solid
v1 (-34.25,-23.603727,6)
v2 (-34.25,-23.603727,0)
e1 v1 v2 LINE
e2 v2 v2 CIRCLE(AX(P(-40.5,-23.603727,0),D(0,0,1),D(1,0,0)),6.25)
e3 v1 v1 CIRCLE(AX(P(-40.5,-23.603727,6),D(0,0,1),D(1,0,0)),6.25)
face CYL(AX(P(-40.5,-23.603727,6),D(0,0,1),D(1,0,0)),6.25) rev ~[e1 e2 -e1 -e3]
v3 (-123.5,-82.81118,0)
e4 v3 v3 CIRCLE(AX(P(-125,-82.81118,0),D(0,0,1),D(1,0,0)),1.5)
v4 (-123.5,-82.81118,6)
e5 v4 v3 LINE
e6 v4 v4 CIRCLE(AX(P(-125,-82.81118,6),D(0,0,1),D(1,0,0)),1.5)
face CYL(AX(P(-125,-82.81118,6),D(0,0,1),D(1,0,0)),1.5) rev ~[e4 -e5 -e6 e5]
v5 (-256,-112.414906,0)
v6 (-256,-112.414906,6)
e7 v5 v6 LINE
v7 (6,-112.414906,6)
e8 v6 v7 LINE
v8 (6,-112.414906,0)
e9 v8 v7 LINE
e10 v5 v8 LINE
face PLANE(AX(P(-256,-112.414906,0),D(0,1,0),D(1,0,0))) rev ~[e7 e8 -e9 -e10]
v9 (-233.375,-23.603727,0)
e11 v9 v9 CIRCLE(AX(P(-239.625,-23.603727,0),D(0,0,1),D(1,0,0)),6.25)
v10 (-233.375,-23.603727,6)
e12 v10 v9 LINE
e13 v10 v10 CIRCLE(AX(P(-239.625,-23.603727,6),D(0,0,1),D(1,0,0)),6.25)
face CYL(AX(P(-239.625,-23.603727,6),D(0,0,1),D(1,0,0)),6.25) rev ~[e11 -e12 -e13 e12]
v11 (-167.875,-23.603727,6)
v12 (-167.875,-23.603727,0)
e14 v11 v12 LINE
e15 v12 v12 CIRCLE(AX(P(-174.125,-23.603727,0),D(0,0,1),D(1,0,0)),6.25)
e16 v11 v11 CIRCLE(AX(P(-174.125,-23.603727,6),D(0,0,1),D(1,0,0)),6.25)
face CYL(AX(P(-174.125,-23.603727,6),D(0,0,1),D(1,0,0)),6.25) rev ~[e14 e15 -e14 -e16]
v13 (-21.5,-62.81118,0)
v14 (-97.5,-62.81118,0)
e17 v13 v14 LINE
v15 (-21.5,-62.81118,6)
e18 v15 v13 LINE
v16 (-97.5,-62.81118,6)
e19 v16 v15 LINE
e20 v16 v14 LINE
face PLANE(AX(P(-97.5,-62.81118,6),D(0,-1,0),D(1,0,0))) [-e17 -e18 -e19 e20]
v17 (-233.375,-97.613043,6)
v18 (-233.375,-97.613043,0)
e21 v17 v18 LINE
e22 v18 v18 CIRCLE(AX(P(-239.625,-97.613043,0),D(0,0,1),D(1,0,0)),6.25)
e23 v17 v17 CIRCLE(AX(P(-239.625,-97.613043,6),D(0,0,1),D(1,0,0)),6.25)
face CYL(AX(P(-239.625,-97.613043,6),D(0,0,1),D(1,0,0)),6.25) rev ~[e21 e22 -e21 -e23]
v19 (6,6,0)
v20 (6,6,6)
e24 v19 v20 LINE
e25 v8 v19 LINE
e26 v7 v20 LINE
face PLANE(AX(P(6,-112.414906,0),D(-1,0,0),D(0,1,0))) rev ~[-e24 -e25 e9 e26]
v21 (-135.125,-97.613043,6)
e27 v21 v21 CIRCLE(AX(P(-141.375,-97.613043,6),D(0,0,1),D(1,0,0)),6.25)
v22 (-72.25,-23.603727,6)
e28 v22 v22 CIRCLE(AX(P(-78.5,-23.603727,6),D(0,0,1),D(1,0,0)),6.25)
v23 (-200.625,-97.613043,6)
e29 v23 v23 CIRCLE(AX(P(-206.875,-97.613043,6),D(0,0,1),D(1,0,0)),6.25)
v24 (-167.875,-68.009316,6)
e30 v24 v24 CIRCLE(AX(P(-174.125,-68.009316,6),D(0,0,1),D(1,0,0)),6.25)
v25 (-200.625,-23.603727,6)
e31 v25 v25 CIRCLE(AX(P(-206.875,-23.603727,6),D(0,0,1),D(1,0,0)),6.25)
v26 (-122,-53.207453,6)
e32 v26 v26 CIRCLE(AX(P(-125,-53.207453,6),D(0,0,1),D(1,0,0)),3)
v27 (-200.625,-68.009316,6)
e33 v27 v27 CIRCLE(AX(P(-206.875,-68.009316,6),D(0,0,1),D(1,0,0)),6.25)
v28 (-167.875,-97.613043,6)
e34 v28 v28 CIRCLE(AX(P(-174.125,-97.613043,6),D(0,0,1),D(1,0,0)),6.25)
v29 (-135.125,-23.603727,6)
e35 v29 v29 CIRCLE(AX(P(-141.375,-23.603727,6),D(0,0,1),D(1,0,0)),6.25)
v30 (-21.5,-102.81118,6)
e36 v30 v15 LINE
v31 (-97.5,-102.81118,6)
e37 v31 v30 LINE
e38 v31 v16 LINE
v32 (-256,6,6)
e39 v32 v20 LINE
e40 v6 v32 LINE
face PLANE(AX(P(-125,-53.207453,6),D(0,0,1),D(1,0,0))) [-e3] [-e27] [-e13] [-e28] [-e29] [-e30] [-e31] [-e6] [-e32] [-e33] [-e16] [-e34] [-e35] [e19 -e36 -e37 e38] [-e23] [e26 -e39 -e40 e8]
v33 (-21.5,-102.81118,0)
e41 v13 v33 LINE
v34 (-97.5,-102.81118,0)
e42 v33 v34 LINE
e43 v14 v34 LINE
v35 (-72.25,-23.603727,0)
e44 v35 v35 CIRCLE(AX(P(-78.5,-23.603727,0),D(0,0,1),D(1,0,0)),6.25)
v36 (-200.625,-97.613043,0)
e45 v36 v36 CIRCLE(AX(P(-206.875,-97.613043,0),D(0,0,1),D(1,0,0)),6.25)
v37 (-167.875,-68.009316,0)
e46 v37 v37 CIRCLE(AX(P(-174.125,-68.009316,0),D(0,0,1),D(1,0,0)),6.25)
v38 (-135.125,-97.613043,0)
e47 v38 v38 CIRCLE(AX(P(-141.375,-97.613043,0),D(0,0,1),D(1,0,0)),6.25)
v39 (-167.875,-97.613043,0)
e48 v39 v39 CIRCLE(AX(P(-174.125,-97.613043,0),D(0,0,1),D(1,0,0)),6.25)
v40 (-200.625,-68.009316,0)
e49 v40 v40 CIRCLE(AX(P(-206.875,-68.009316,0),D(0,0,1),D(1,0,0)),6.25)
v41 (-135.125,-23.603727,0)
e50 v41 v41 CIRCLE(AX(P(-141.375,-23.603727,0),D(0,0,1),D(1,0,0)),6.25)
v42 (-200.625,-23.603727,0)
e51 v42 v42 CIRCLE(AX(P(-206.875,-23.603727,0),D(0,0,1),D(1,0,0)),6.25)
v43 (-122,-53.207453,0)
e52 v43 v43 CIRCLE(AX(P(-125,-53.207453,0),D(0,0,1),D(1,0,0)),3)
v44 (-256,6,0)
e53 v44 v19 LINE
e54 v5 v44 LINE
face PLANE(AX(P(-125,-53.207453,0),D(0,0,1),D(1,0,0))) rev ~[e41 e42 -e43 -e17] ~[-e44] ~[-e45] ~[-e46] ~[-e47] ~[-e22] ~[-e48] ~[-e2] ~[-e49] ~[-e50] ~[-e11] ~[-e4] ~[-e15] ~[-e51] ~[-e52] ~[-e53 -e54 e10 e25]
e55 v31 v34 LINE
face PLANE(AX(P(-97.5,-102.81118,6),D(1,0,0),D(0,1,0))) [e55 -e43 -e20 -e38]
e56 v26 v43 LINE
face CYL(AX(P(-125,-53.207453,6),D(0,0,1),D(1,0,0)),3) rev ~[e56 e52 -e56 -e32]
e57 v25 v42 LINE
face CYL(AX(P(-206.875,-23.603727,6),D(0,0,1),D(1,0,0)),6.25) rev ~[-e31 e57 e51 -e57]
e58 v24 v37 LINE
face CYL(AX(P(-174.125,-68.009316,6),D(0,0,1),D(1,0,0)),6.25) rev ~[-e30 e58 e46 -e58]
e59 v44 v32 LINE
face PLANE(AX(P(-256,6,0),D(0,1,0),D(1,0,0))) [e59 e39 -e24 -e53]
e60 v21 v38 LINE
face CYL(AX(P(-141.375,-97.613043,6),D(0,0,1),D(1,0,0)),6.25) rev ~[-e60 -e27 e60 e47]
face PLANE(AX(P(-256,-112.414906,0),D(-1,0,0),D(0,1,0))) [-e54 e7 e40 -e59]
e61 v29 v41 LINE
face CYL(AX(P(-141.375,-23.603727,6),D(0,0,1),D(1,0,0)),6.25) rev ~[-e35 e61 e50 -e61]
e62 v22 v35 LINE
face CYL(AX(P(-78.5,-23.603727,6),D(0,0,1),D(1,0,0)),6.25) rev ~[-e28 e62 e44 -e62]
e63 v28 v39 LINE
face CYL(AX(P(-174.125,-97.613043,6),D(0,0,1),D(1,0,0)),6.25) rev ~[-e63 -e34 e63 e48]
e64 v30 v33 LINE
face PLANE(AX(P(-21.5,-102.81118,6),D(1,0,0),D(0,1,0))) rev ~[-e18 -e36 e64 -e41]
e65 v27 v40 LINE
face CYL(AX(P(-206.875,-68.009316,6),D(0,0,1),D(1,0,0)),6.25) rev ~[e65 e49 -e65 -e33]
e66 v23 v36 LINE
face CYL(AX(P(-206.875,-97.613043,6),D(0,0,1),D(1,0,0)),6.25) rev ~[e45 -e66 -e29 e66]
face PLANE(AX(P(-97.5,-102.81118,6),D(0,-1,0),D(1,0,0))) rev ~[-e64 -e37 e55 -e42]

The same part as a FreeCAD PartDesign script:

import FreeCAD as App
import Part
import Sketcher
from FreeCAD import Vector


def add_polygon(sketch, points):
    """Adds a closed chain of lines whose ends are joined by coincident constraints."""
    first, n = sketch.GeometryCount, len(points)
    for a, b in zip(points, points[1:] + points[:1]):
        sketch.addGeometry(Part.LineSegment(App.Vector(*a, 0), App.Vector(*b, 0)), False)
    for i in range(n):
        sketch.addConstraint(Sketcher.Constraint("Coincident", first + i, 2, first + (i + 1) % n, 1))

doc = App.newDocument("Part")
body = doc.addObject("PartDesign::Body", "Body")

sketch1 = body.newObject("Sketcher::SketchObject", "Sketch")
sketch1.AttachmentSupport = (doc.getObject("XY_Plane"), [""])
sketch1.MapMode = "FlatFace"
add_polygon(sketch1, [(-256, 6), (-256, -112.414906), (6, -112.414906), (6, 6)])
sketch1.addConstraint(Sketcher.Constraint("Vertical", 0))
sketch1.addConstraint(Sketcher.Constraint("Horizontal", 1))
sketch1.addConstraint(Sketcher.Constraint("Vertical", 2))
sketch1.addConstraint(Sketcher.Constraint("Horizontal", 3))
sketch1.addConstraint(Sketcher.Constraint("DistanceX", 1, 1, 1, 2, 262.0))
sketch1.addConstraint(Sketcher.Constraint("DistanceX", 0, 2, -1, 1, 256.0))
sketch1.addConstraint(Sketcher.Constraint("DistanceY", -1, 1, 2, 2, 6.0))
sketch1.addConstraint(Sketcher.Constraint("DistanceY", 0, 2, 0, 1, 118.414906))
pad1 = body.newObject("PartDesign::Pad", "Pad")
pad1.Profile = sketch1
pad1.Length = 6

sketch2 = body.newObject("Sketcher::SketchObject", "Sketch001")
sketch2.AttachmentSupport = (doc.getObject("XY_Plane"), [""])
sketch2.MapMode = "FlatFace"
sketch2.AttachmentOffset = App.Placement(Vector(0, 0, 6), App.Rotation())
sketch2.addGeometry(Part.Circle(Vector(-40.5, -23.603727, 0), Vector(0, 0, 1), 6.25), False)
sketch2.addConstraint(Sketcher.Constraint("Diameter", 0, 12.5))
sketch2.addConstraint(Sketcher.Constraint("DistanceX", 0, 3, -1, 1, 40.5))
sketch2.addConstraint(Sketcher.Constraint("DistanceY", 0, 3, -1, 1, 23.603727))
pocket1 = body.newObject("PartDesign::Pocket", "Pocket")
pocket1.Profile = sketch2
pocket1.Type = "UpToFirst"

sketch3 = body.newObject("Sketcher::SketchObject", "Sketch002")
sketch3.AttachmentSupport = (doc.getObject("XY_Plane"), [""])
sketch3.MapMode = "FlatFace"
sketch3.AttachmentOffset = App.Placement(Vector(0, 0, 6), App.Rotation())
sketch3.addGeometry(Part.Circle(Vector(-78.5, -23.603727, 0), Vector(0, 0, 1), 6.25), False)
sketch3.addConstraint(Sketcher.Constraint("Diameter", 0, 12.5))
sketch3.addConstraint(Sketcher.Constraint("DistanceX", 0, 3, -1, 1, 78.5))
sketch3.addConstraint(Sketcher.Constraint("DistanceY", 0, 3, -1, 1, 23.603727))
pocket2 = body.newObject("PartDesign::Pocket", "Pocket001")
pocket2.Profile = sketch3
pocket2.Type = "UpToFirst"

sketch4 = body.newObject("Sketcher::SketchObject", "Sketch003")
sketch4.AttachmentSupport = (doc.getObject("XY_Plane"), [""])
sketch4.MapMode = "FlatFace"
sketch4.AttachmentOffset = App.Placement(Vector(0, 0, 6), App.Rotation())
add_polygon(sketch4, [(-97.5, -62.81118), (-97.5, -102.81118), (-21.5, -102.81118), (-21.5, -62.81118)])
sketch4.addConstraint(Sketcher.Constraint("Vertical", 0))
sketch4.addConstraint(Sketcher.Constraint("Horizontal", 1))
sketch4.addConstraint(Sketcher.Constraint("Vertical", 2))
sketch4.addConstraint(Sketcher.Constraint("Horizontal", 3))
sketch4.addConstraint(Sketcher.Constraint("DistanceX", 1, 1, 1, 2, 76.0))
sketch4.addConstraint(Sketcher.Constraint("DistanceY", 0, 2, 0, 1, 40.0))
sketch4.addConstraint(Sketcher.Constraint("DistanceX", 0, 2, -1, 1, 97.5))
sketch4.addConstraint(Sketcher.Constraint("DistanceY", 0, 2, -1, 1, 102.81118))
pocket3 = body.newObject("PartDesign::Pocket", "Pocket002")
pocket3.Profile = sketch4
pocket3.Type = "UpToFirst"

sketch5 = body.newObject("Sketcher::SketchObject", "Sketch004")
sketch5.AttachmentSupport = (doc.getObject("XY_Plane"), [""])
sketch5.MapMode = "FlatFace"
sketch5.AttachmentOffset = App.Placement(Vector(0, 0, 6), App.Rotation())
sketch5.addGeometry(Part.Circle(Vector(-125, -53.207453, 0), Vector(0, 0, 1), 3), False)
sketch5.addConstraint(Sketcher.Constraint("Diameter", 0, 6.0))
sketch5.addConstraint(Sketcher.Constraint("DistanceX", 0, 3, -1, 1, 125.0))
sketch5.addConstraint(Sketcher.Constraint("DistanceY", 0, 3, -1, 1, 53.207453))
pocket4 = body.newObject("PartDesign::Pocket", "Pocket003")
pocket4.Profile = sketch5
pocket4.Type = "UpToFirst"

sketch6 = body.newObject("Sketcher::SketchObject", "Sketch005")
sketch6.AttachmentSupport = (doc.getObject("XY_Plane"), [""])
sketch6.MapMode = "FlatFace"
sketch6.AttachmentOffset = App.Placement(Vector(0, 0, 6), App.Rotation())
sketch6.addGeometry(Part.Circle(Vector(-125, -82.81118, 0), Vector(0, 0, 1), 1.5), False)
sketch6.addConstraint(Sketcher.Constraint("Diameter", 0, 3.0))
sketch6.addConstraint(Sketcher.Constraint("DistanceX", 0, 3, -1, 1, 125.0))
sketch6.addConstraint(Sketcher.Constraint("DistanceY", 0, 3, -1, 1, 82.81118))
pocket5 = body.newObject("PartDesign::Pocket", "Pocket004")
pocket5.Profile = sketch6
pocket5.Type = "UpToFirst"

sketch7 = body.newObject("Sketcher::SketchObject", "Sketch006")
sketch7.AttachmentSupport = (doc.getObject("XY_Plane"), [""])
sketch7.MapMode = "FlatFace"
sketch7.AttachmentOffset = App.Placement(Vector(0, 0, 6), App.Rotation())
sketch7.addGeometry(Part.Circle(Vector(-141.375, -97.613043, 0), Vector(0, 0, 1), 6.25), False)
sketch7.addConstraint(Sketcher.Constraint("Diameter", 0, 12.5))
sketch7.addConstraint(Sketcher.Constraint("DistanceX", 0, 3, -1, 1, 141.375))
sketch7.addConstraint(Sketcher.Constraint("DistanceY", 0, 3, -1, 1, 97.613043))
pocket6 = body.newObject("PartDesign::Pocket", "Pocket005")
pocket6.Profile = sketch7
pocket6.Type = "UpToFirst"

sketch8 = body.newObject("Sketcher::SketchObject", "Sketch007")
sketch8.AttachmentSupport = (doc.getObject("XY_Plane"), [""])
sketch8.MapMode = "FlatFace"
sketch8.AttachmentOffset = App.Placement(Vector(0, 0, 6), App.Rotation())
sketch8.addGeometry(Part.Circle(Vector(-174.125, -97.613043, 0), Vector(0, 0, 1), 6.25), False)
sketch8.addConstraint(Sketcher.Constraint("Diameter", 0, 12.5))
sketch8.addConstraint(Sketcher.Constraint("DistanceX", 0, 3, -1, 1, 174.125))
sketch8.addConstraint(Sketcher.Constraint("DistanceY", 0, 3, -1, 1, 97.613043))
pocket7 = body.newObject("PartDesign::Pocket", "Pocket006")
pocket7.Profile = sketch8
pocket7.Type = "UpToFirst"

sketch9 = body.newObject("Sketcher::SketchObject", "Sketch008")
sketch9.AttachmentSupport = (doc.getObject("XY_Plane"), [""])
sketch9.MapMode = "FlatFace"
sketch9.AttachmentOffset = App.Placement(Vector(0, 0, 6), App.Rotation())
sketch9.addGeometry(Part.Circle(Vector(-206.875, -97.613043, 0), Vector(0, 0, 1), 6.25), False)
sketch9.addConstraint(Sketcher.Constraint("Diameter", 0, 12.5))
sketch9.addConstraint(Sketcher.Constraint("DistanceX", 0, 3, -1, 1, 206.875))
sketch9.addConstraint(Sketcher.Constraint("DistanceY", 0, 3, -1, 1, 97.613043))
pocket8 = body.newObject("PartDesign::Pocket", "Pocket007")
pocket8.Profile = sketch9
pocket8.Type = "UpToFirst"

sketch10 = body.newObject("Sketcher::SketchObject", "Sketch009")
sketch10.AttachmentSupport = (doc.getObject("XY_Plane"), [""])
sketch10.MapMode = "FlatFace"
sketch10.AttachmentOffset = App.Placement(Vector(0, 0, 6), App.Rotation())
sketch10.addGeometry(Part.Circle(Vector(-239.625, -97.613043, 0), Vector(0, 0, 1), 6.25), False)
sketch10.addConstraint(Sketcher.Constraint("Diameter", 0, 12.5))
sketch10.addConstraint(Sketcher.Constraint("DistanceX", 0, 3, -1, 1, 239.625))
sketch10.addConstraint(Sketcher.Constraint("DistanceY", 0, 3, -1, 1, 97.613043))
pocket9 = body.newObject("PartDesign::Pocket", "Pocket008")
pocket9.Profile = sketch10
pocket9.Type = "UpToFirst"

sketch11 = body.newObject("Sketcher::SketchObject", "Sketch010")
sketch11.AttachmentSupport = (doc.getObject("XY_Plane"), [""])
sketch11.MapMode = "FlatFace"
sketch11.AttachmentOffset = App.Placement(Vector(0, 0, 6), App.Rotation())
sketch11.addGeometry(Part.Circle(Vector(-174.125, -68.009316, 0), Vector(0, 0, 1), 6.25), False)
sketch11.addConstraint(Sketcher.Constraint("Diameter", 0, 12.5))
sketch11.addConstraint(Sketcher.Constraint("DistanceX", 0, 3, -1, 1, 174.125))
sketch11.addConstraint(Sketcher.Constraint("DistanceY", 0, 3, -1, 1, 68.009316))
pocket10 = body.newObject("PartDesign::Pocket", "Pocket009")
pocket10.Profile = sketch11
pocket10.Type = "UpToFirst"

sketch12 = body.newObject("Sketcher::SketchObject", "Sketch011")
sketch12.AttachmentSupport = (doc.getObject("XY_Plane"), [""])
sketch12.MapMode = "FlatFace"
sketch12.AttachmentOffset = App.Placement(Vector(0, 0, 6), App.Rotation())
sketch12.addGeometry(Part.Circle(Vector(-206.875, -68.009316, 0), Vector(0, 0, 1), 6.25), False)
sketch12.addConstraint(Sketcher.Constraint("Diameter", 0, 12.5))
sketch12.addConstraint(Sketcher.Constraint("DistanceX", 0, 3, -1, 1, 206.875))
sketch12.addConstraint(Sketcher.Constraint("DistanceY", 0, 3, -1, 1, 68.009316))
pocket11 = body.newObject("PartDesign::Pocket", "Pocket010")
pocket11.Profile = sketch12
pocket11.Type = "UpToFirst"

sketch13 = body.newObject("Sketcher::SketchObject", "Sketch012")
sketch13.AttachmentSupport = (doc.getObject("XY_Plane"), [""])
sketch13.MapMode = "FlatFace"
sketch13.AttachmentOffset = App.Placement(Vector(0, 0, 6), App.Rotation())
sketch13.addGeometry(Part.Circle(Vector(-141.375, -23.603727, 0), Vector(0, 0, 1), 6.25), False)
sketch13.addConstraint(Sketcher.Constraint("Diameter", 0, 12.5))
sketch13.addConstraint(Sketcher.Constraint("DistanceX", 0, 3, -1, 1, 141.375))
sketch13.addConstraint(Sketcher.Constraint("DistanceY", 0, 3, -1, 1, 23.603727))
pocket12 = body.newObject("PartDesign::Pocket", "Pocket011")
pocket12.Profile = sketch13
pocket12.Type = "UpToFirst"

sketch14 = body.newObject("Sketcher::SketchObject", "Sketch013")
sketch14.AttachmentSupport = (doc.getObject("XY_Plane"), [""])
sketch14.MapMode = "FlatFace"
sketch14.AttachmentOffset = App.Placement(Vector(0, 0, 6), App.Rotation())
sketch14.addGeometry(Part.Circle(Vector(-174.125, -23.603727, 0), Vector(0, 0, 1), 6.25), False)
sketch14.addConstraint(Sketcher.Constraint("Diameter", 0, 12.5))
sketch14.addConstraint(Sketcher.Constraint("DistanceX", 0, 3, -1, 1, 174.125))
sketch14.addConstraint(Sketcher.Constraint("DistanceY", 0, 3, -1, 1, 23.603727))
pocket13 = body.newObject("PartDesign::Pocket", "Pocket012")
pocket13.Profile = sketch14
pocket13.Type = "UpToFirst"

sketch15 = body.newObject("Sketcher::SketchObject", "Sketch014")
sketch15.AttachmentSupport = (doc.getObject("XY_Plane"), [""])
sketch15.MapMode = "FlatFace"
sketch15.AttachmentOffset = App.Placement(Vector(0, 0, 6), App.Rotation())
sketch15.addGeometry(Part.Circle(Vector(-206.875, -23.603727, 0), Vector(0, 0, 1), 6.25), False)
sketch15.addConstraint(Sketcher.Constraint("Diameter", 0, 12.5))
sketch15.addConstraint(Sketcher.Constraint("DistanceX", 0, 3, -1, 1, 206.875))
sketch15.addConstraint(Sketcher.Constraint("DistanceY", 0, 3, -1, 1, 23.603727))
pocket14 = body.newObject("PartDesign::Pocket", "Pocket013")
pocket14.Profile = sketch15
pocket14.Type = "UpToFirst"

sketch16 = body.newObject("Sketcher::SketchObject", "Sketch015")
sketch16.AttachmentSupport = (doc.getObject("XY_Plane"), [""])
sketch16.MapMode = "FlatFace"
sketch16.AttachmentOffset = App.Placement(Vector(0, 0, 6), App.Rotation())
sketch16.addGeometry(Part.Circle(Vector(-239.625, -23.603727, 0), Vector(0, 0, 1), 6.25), False)
sketch16.addConstraint(Sketcher.Constraint("Diameter", 0, 12.5))
sketch16.addConstraint(Sketcher.Constraint("DistanceX", 0, 3, -1, 1, 239.625))
sketch16.addConstraint(Sketcher.Constraint("DistanceY", 0, 3, -1, 1, 23.603727))
pocket15 = body.newObject("PartDesign::Pocket", "Pocket014")
pocket15.Profile = sketch16
pocket15.Type = "UpToFirst"

doc.recompute()
